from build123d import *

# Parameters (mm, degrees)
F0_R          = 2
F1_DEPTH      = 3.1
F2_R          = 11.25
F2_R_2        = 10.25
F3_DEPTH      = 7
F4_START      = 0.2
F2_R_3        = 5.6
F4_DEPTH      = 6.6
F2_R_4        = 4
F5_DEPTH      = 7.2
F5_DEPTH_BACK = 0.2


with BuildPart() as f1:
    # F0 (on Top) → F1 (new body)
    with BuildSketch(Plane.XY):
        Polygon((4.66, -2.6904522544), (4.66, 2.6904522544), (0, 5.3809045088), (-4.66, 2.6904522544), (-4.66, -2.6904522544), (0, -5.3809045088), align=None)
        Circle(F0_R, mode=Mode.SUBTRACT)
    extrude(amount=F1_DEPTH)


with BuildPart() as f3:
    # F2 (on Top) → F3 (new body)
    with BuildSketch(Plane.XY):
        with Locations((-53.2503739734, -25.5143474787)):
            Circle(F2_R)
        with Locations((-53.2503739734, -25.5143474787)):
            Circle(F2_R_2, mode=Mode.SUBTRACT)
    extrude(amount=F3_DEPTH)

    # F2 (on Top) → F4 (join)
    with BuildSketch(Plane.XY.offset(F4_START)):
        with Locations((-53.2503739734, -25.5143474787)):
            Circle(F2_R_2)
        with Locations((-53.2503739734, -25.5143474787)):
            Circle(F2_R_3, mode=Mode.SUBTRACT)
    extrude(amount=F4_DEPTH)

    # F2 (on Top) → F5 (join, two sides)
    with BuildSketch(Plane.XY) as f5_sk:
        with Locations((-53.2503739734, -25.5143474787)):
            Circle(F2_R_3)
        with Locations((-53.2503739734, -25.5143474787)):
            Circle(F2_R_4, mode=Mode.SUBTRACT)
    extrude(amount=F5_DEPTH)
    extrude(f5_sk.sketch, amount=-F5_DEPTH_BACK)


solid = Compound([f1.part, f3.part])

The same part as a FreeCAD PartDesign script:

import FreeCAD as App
import Part
import Sketcher

V = App.Vector
Q = App.Units.Quantity

doc = App.newDocument("Part")
body = doc.addObject("PartDesign::Body", "Body")

sketch1 = body.newObject("Sketcher::SketchObject", "Sketch")
sketch1.AttachmentSupport = (doc.getObject("XY_Plane"), [""])
sketch1.MapMode = "FlatFace"
sketch1.addGeometry(Part.LineSegment(V(4.66, -2.690452, 0), V(4.66, 2.690452, 0)), False)
sketch1.addGeometry(Part.LineSegment(V(4.66, 2.690452, 0), V(0, 5.380905, 0)), False)
sketch1.addGeometry(Part.LineSegment(V(0, 5.380905, 0), V(-4.66, 2.690452, 0)), False)
sketch1.addGeometry(Part.LineSegment(V(-4.66, 2.690452, 0), V(-4.66, -2.690452, 0)), False)
sketch1.addGeometry(Part.LineSegment(V(-4.66, -2.690452, 0), V(0, -5.380905, 0)), False)
sketch1.addGeometry(Part.LineSegment(V(0, -5.380905, 0), V(4.66, -2.690452, 0)), False)
sketch1.addGeometry(Part.Circle(V(0, 0, 0), V(0, 0, 1), 2), False)
sketch1.addConstraint(Sketcher.Constraint("Coincident", 0, 2, 1, 1))
sketch1.addConstraint(Sketcher.Constraint("Coincident", 1, 2, 2, 1))
sketch1.addConstraint(Sketcher.Constraint("Coincident", 2, 2, 3, 1))
sketch1.addConstraint(Sketcher.Constraint("Coincident", 3, 2, 4, 1))
sketch1.addConstraint(Sketcher.Constraint("Coincident", 4, 2, 5, 1))
sketch1.addConstraint(Sketcher.Constraint("Coincident", 5, 2, 0, 1))
sketch1.addConstraint(Sketcher.Constraint("Vertical", 0))
sketch1.addConstraint(Sketcher.Constraint("Vertical", 3))
sketch1.addConstraint(Sketcher.Constraint("Coincident", 6, 3, -1, 1))
sketch1.addConstraint(Sketcher.Constraint("Symmetric", 0, 2, 3, 2, -1, 1))
sketch1.addConstraint(Sketcher.Constraint("Symmetric", 1, 2, 4, 2, -1, 1))
sketch1.addConstraint(Sketcher.Constraint("PointOnObject", 1, 2, -2))
sketch1.addConstraint(Sketcher.Constraint("Parallel", 2, 5))
sketch1.addConstraint(Sketcher.Constraint("Horizontal", 0, 2, 2, 2))
sketch1.addConstraint(Sketcher.Constraint("Diameter", 6, 4.0))
sketch1.addConstraint(Sketcher.Constraint("Angle", 1, Q("150 deg")))
sketch1.addConstraint(Sketcher.Constraint("DistanceX", -1, 1, 0, 2, 4.66))
sketch1.addConstraint(Sketcher.Constraint("DistanceY", 0, 1, 0, 2, 5.380905))
pad1 = body.newObject("PartDesign::Pad", "Pad")
pad1.Profile = sketch1
pad1.Length = 3.1
body2 = doc.addObject("PartDesign::Body", "Body001")

sketch2 = body2.newObject("Sketcher::SketchObject", "Sketch001")
sketch2.AttachmentSupport = (doc.getObject("XY_Plane001"), [""])
sketch2.MapMode = "FlatFace"
sketch2.addGeometry(Part.Circle(V(-53.250374, -25.514347, 0), V(0, 0, 1), 11.25), False)
sketch2.addGeometry(Part.Circle(V(-53.250374, -25.514347, 0), V(0, 0, 1), 10.25), False)
sketch2.addConstraint(Sketcher.Constraint("Coincident", 1, 3, 0, 3))
sketch2.addConstraint(Sketcher.Constraint("Diameter", 0, 22.5))
sketch2.addConstraint(Sketcher.Constraint("Diameter", 1, 20.5))
sketch2.addConstraint(Sketcher.Constraint("DistanceX", 0, 3, -1, 1, 53.250374))
sketch2.addConstraint(Sketcher.Constraint("DistanceY", 0, 3, -1, 1, 25.514347))
pad2 = body2.newObject("PartDesign::Pad", "Pad001")
pad2.Profile = sketch2
pad2.Length = 7

sketch3 = body2.newObject("Sketcher::SketchObject", "Sketch002")
sketch3.AttachmentSupport = (doc.getObject("XY_Plane001"), [""])
sketch3.MapMode = "FlatFace"
sketch3.AttachmentOffset = App.Placement(V(0, 0, 0.2), App.Rotation())
sketch3.addGeometry(Part.Circle(V(-53.250374, -25.514347, 0), V(0, 0, 1), 10.25), False)
sketch3.addGeometry(Part.Circle(V(-53.250374, -25.514347, 0), V(0, 0, 1), 5.6), False)
sketch3.addConstraint(Sketcher.Constraint("Coincident", 1, 3, 0, 3))
sketch3.addConstraint(Sketcher.Constraint("Diameter", 0, 20.5))
sketch3.addConstraint(Sketcher.Constraint("Diameter", 1, 11.2))
sketch3.addConstraint(Sketcher.Constraint("DistanceX", 0, 3, -1, 1, 53.250374))
sketch3.addConstraint(Sketcher.Constraint("DistanceY", 0, 3, -1, 1, 25.514347))
pad3 = body2.newObject("PartDesign::Pad", "Pad002")
pad3.Profile = sketch3
pad3.Length = 6.6

sketch4 = body2.newObject("Sketcher::SketchObject", "Sketch003")
sketch4.AttachmentSupport = (doc.getObject("XY_Plane001"), [""])
sketch4.MapMode = "FlatFace"
sketch4.addGeometry(Part.Circle(V(-53.250374, -25.514347, 0), V(0, 0, 1), 5.6), False)
sketch4.addGeometry(Part.Circle(V(-53.250374, -25.514347, 0), V(0, 0, 1), 4), False)
sketch4.addConstraint(Sketcher.Constraint("Coincident", 1, 3, 0, 3))
sketch4.addConstraint(Sketcher.Constraint("Diameter", 1, 8.0))
sketch4.addConstraint(Sketcher.Constraint("Diameter", 0, 11.2))
sketch4.addConstraint(Sketcher.Constraint("DistanceX", 0, 3, -1, 1, 53.250374))
sketch4.addConstraint(Sketcher.Constraint("DistanceY", 0, 3, -1, 1, 25.514347))
pad4 = body2.newObject("PartDesign::Pad", "Pad003")
pad4.Profile = sketch4
pad4.Type = "TwoLengths"
pad4.Length = 7.2
pad4.Length2 = 0.2

doc.recompute()
